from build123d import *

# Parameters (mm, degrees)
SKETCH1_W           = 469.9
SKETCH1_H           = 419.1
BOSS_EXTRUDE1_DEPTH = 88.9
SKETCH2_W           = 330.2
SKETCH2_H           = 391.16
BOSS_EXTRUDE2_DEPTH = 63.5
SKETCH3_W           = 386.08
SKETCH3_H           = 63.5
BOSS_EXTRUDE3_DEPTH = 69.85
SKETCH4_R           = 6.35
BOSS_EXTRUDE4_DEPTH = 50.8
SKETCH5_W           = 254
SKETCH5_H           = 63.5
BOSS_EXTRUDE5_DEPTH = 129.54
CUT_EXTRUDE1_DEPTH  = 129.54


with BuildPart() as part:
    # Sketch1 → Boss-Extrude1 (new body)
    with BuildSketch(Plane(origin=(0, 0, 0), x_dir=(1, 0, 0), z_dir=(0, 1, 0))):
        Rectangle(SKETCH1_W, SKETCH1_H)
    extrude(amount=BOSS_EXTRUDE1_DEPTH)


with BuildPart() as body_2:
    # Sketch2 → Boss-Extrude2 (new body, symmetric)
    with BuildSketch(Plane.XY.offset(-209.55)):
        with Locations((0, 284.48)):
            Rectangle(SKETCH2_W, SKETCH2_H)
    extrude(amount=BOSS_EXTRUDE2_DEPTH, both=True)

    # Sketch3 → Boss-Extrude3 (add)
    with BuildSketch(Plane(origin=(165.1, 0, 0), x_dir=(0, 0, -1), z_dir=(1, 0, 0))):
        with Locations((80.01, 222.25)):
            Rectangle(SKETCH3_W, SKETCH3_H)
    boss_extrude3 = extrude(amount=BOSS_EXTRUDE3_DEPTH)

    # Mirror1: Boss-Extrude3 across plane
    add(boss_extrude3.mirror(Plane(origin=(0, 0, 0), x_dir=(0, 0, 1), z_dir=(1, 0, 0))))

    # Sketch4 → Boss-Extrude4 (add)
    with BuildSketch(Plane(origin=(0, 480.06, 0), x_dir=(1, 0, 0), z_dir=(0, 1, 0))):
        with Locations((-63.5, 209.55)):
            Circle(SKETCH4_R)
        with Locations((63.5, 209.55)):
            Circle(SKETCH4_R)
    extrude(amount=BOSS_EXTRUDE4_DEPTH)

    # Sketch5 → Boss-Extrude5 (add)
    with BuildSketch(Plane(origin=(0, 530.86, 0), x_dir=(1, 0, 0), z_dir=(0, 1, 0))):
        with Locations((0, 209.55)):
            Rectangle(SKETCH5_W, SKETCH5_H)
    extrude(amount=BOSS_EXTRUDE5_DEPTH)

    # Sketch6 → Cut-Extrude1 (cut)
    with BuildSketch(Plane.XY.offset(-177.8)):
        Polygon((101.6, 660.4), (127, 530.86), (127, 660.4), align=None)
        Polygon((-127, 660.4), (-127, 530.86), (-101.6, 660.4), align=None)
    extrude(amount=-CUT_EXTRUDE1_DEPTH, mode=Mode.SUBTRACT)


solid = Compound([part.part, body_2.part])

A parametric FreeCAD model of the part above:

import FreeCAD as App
import Part
import Sketcher
Q = App.Units.Quantity


def add_polygon(sketch, points):
    """Adds a closed chain of lines whose ends are joined by coincident constraints."""
    first, n = sketch.GeometryCount, len(points)
    for a, b in zip(points, points[1:] + points[:1]):
        sketch.addGeometry(Part.LineSegment(App.Vector(*a, 0), App.Vector(*b, 0)), False)
    for i in range(n):
        sketch.addConstraint(Sketcher.Constraint("Coincident", first + i, 2, first + (i + 1) % n, 1))

doc = App.newDocument("Part")
body = doc.addObject("PartDesign::Body", "Body")

# Sketch on XZ plane
sketch1 = body.newObject("Sketcher::SketchObject", "Sketch")
sketch1.AttachmentSupport = (doc.getObject("XZ_Plane"), [""])
sketch1.MapMode = "FlatFace"
add_polygon(sketch1, [(-235, -210), (-235, 210), (235, 210), (235, -210)])  # lines 0-3
sketch1.addConstraint(Sketcher.Constraint("Vertical", 0))
sketch1.addConstraint(Sketcher.Constraint("Horizontal", 1))
sketch1.addConstraint(Sketcher.Constraint("Vertical", 2))
sketch1.addConstraint(Sketcher.Constraint("Horizontal", 3))
sketch1.addConstraint(Sketcher.Constraint("Symmetric", 0, 2, 2, 2, -1, 1))
sketch1.addConstraint(Sketcher.Constraint("DistanceX", 1, 1, 1, 2, Q("18.5 in")))
sketch1.addConstraint(Sketcher.Constraint("DistanceY", 0, 1, 0, 2, Q("16.5 in")))
pad1 = body.newObject("PartDesign::Pad", "Pad")
pad1.Profile = sketch1
pad1.Length = Q("3.5 in")
pad1.Reversed = True
body2 = doc.addObject("PartDesign::Body", "Body001")

# Sketch on XY plane
sketch2 = body2.newObject("Sketcher::SketchObject", "Sketch001")
sketch2.AttachmentSupport = (doc.getObject("XY_Plane001"), [""])
sketch2.MapMode = "FlatFace"
sketch2.AttachmentOffset = App.Placement(App.Vector(0, 0, -8.25 * 25.4), App.Rotation())
add_polygon(sketch2, [(-165, 480), (-165, 89), (165, 89), (165, 480)])  # lines 0-3
sketch2.addConstraint(Sketcher.Constraint("Vertical", 0))
sketch2.addConstraint(Sketcher.Constraint("Horizontal", 1))
sketch2.addConstraint(Sketcher.Constraint("Vertical", 2))
sketch2.addConstraint(Sketcher.Constraint("Horizontal", 3))
sketch2.addConstraint(Sketcher.Constraint("DistanceX", 1, 1, 1, 2, Q("13 in")))
sketch2.addConstraint(Sketcher.Constraint("DistanceY", 0, 2, 0, 1, Q("15.4 in")))
sketch2.addConstraint(Sketcher.Constraint("DistanceX", 0, 2, -1, 1, Q("6.5 in")))
sketch2.addConstraint(Sketcher.Constraint("DistanceY", -1, 1, 0, 2, Q("3.5 in")))
pad2 = body2.newObject("PartDesign::Pad", "Pad001")
pad2.Profile = sketch2
pad2.Length = Q("5 in")
pad2.Midplane = True

# Sketch on YZ plane
sketch3 = body2.newObject("Sketcher::SketchObject", "Sketch002")
sketch3.AttachmentSupport = (doc.getObject("YZ_Plane001"), [""])
sketch3.MapMode = "FlatFace"
sketch3.AttachmentOffset = App.Placement(App.Vector(0, 0, 6.5 * 25.4), App.Rotation())
add_polygon(sketch3, [(254, 113), (190, 113), (190, -273), (254, -273)])  # lines 0-3
sketch3.addConstraint(Sketcher.Constraint("Horizontal", 0))
sketch3.addConstraint(Sketcher.Constraint("Vertical", 1))
sketch3.addConstraint(Sketcher.Constraint("Horizontal", 2))
sketch3.addConstraint(Sketcher.Constraint("Vertical", 3))
sketch3.addConstraint(Sketcher.Constraint("DistanceX", 0, 2, 0, 1, Q("2.5 in")))
sketch3.addConstraint(Sketcher.Constraint("DistanceY", 1, 2, 1, 1, Q("15.2 in")))
sketch3.addConstraint(Sketcher.Constraint("DistanceX", -1, 1, 2, 2, Q("10 in")))
sketch3.addConstraint(Sketcher.Constraint("DistanceY", -1, 1, 0, 2, Q("4.45 in")))
pad3 = body2.newObject("PartDesign::Pad", "Pad002")
pad3.Profile = sketch3
pad3.Length = Q("2.75 in")
doc.recompute()

mirrored = body2.newObject("PartDesign::Mirrored", "Mirrored")
mirrored.Originals = [pad3]
mirrored.MirrorPlane = (doc.getObject("YZ_Plane001"), [""])
body2.Tip = mirrored

# Sketch on XZ plane
sketch4 = body2.newObject("Sketcher::SketchObject", "Sketch003")
sketch4.AttachmentSupport = (doc.getObject("XZ_Plane001"), [""])
sketch4.MapMode = "FlatFace"
sketch4.AttachmentOffset = App.Placement(App.Vector(0, 0, -18.9 * 25.4), App.Rotation())
sketch4.addGeometry(Part.Circle(App.Vector(-64, -210, 0), App.Vector(0, 0, 1), 6), False)
sketch4.addGeometry(Part.Circle(App.Vector(64, -210, 0), App.Vector(0, 0, 1), 6), False)
sketch4.addConstraint(Sketcher.Constraint("Equal", 0, 1))
sketch4.addConstraint(Sketcher.Constraint("Symmetric", 0, 3, 1, 3, -2))
sketch4.addConstraint(Sketcher.Constraint("Diameter", 0, Q("0.5 in")))
sketch4.addConstraint(Sketcher.Constraint("DistanceX", 0, 3, 1, 3, Q("5 in")))
sketch4.addConstraint(Sketcher.Constraint("DistanceY", 0, 3, -1, 1, Q("8.25 in")))
pad4 = body2.newObject("PartDesign::Pad", "Pad003")
pad4.Profile = sketch4
pad4.Length = Q("2 in")
pad4.Reversed = True

# Sketch on XZ plane
sketch5 = body2.newObject("Sketcher::SketchObject", "Sketch004")
sketch5.AttachmentSupport = (doc.getObject("XZ_Plane001"), [""])
sketch5.MapMode = "FlatFace"
sketch5.AttachmentOffset = App.Placement(App.Vector(0, 0, -20.9 * 25.4), App.Rotation())
add_polygon(sketch5, [(-127, -241), (-127, -178), (127, -178), (127, -241)])  # lines 0-3
sketch5.addConstraint(Sketcher.Constraint("Vertical", 0))
sketch5.addConstraint(Sketcher.Constraint("Horizontal", 1))
sketch5.addConstraint(Sketcher.Constraint("Vertical", 2))
sketch5.addConstraint(Sketcher.Constraint("Horizontal", 3))
sketch5.addConstraint(Sketcher.Constraint("DistanceX", 1, 1, 1, 2, Q("10 in")))
sketch5.addConstraint(Sketcher.Constraint("DistanceY", 0, 1, 0, 2, Q("2.5 in")))
sketch5.addConstraint(Sketcher.Constraint("DistanceX", 0, 2, -1, 1, Q("5 in")))
sketch5.addConstraint(Sketcher.Constraint("DistanceY", 0, 2, -1, 1, Q("7 in")))
pad5 = body2.newObject("PartDesign::Pad", "Pad004")
pad5.Profile = sketch5
pad5.Length = Q("5.1 in")
pad5.Reversed = True

# Sketch on XY plane
sketch6 = body2.newObject("Sketcher::SketchObject", "Sketch005")
sketch6.AttachmentSupport = (doc.getObject("XY_Plane001"), [""])
sketch6.MapMode = "FlatFace"
sketch6.AttachmentOffset = App.Placement(App.Vector(0, 0, -7 * 25.4), App.Rotation())
add_polygon(sketch6, [(102, 660), (127, 531), (127, 660)])  # lines 0-2
add_polygon(sketch6, [(-127, 660), (-127, 531), (-102, 660)])  # lines 3-5
sketch6.addConstraint(Sketcher.Constraint("Vertical", 1))
sketch6.addConstraint(Sketcher.Constraint("Horizontal", 2))
sketch6.addConstraint(Sketcher.Constraint("Vertical", 3))
sketch6.addConstraint(Sketcher.Constraint("Horizontal", 5))
sketch6.addConstraint(Sketcher.Constraint("Symmetric", 0, 2, 3, 2, -2))
sketch6.addConstraint(Sketcher.Constraint("Symmetric", 2, 2, 4, 2, -2))
sketch6.addConstraint(Sketcher.Constraint("DistanceX", 2, 2, 2, 1, Q("1 in")))
sketch6.addConstraint(Sketcher.Constraint("DistanceY", 1, 1, 1, 2, Q("5.1 in")))
sketch6.addConstraint(Sketcher.Constraint("DistanceX", -1, 1, 0, 2, Q("5 in")))
sketch6.addConstraint(Sketcher.Constraint("DistanceY", -1, 1, 1, 2, Q("26 in")))
pocket1 = body2.newObject("PartDesign::Pocket", "Pocket")
pocket1.Profile = sketch6
pocket1.Length = Q("5.1 in")

doc.recompute()
